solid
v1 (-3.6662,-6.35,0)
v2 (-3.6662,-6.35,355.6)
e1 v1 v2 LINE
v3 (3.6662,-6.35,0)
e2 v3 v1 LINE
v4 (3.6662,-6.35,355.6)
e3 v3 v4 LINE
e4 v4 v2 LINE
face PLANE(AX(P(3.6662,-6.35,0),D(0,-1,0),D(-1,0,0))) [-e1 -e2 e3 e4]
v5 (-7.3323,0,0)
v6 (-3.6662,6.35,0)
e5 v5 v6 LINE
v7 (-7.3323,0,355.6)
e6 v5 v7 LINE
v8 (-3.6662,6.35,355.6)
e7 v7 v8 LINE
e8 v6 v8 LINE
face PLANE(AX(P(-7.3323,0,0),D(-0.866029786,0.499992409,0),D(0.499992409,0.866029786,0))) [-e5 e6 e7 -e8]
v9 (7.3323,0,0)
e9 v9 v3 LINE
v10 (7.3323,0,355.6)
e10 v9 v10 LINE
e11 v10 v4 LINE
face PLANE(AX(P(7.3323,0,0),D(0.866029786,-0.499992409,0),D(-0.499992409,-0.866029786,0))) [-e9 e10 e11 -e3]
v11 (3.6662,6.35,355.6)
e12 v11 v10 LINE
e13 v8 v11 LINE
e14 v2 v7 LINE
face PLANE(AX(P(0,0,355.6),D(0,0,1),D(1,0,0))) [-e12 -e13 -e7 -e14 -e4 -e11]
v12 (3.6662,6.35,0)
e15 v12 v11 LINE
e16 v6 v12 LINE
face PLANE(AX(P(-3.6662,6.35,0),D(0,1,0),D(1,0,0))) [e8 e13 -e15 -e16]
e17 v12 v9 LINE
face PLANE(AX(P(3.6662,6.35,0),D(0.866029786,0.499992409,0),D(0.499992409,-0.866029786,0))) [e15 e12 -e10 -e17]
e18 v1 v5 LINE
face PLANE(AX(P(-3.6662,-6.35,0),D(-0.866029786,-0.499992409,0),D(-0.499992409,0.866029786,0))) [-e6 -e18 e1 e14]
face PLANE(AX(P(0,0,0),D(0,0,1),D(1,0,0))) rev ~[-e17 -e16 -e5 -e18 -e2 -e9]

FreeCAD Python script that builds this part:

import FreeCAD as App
import Part
import Sketcher

V = App.Vector
Q = App.Units.Quantity


def add_polygon(sketch, points):
    """Adds a closed chain of lines whose ends are joined by coincident constraints."""
    first, n = sketch.GeometryCount, len(points)
    for a, b in zip(points, points[1:] + points[:1]):
        sketch.addGeometry(Part.LineSegment(App.Vector(*a, 0), App.Vector(*b, 0)), False)
    for i in range(n):
        sketch.addConstraint(Sketcher.Constraint("Coincident", first + i, 2, first + (i + 1) % n, 1))

doc = App.newDocument("Part")
body = doc.addObject("PartDesign::Body", "Body")

# Sketch on XY plane
sketch1 = doc.addObject("Sketcher::SketchObject", "Sketch")
body.addObject(sketch1)
sketch1.AttachmentSupport = (doc.XY_Plane, [""])
sketch1.MapMode = "FlatFace"
add_polygon(sketch1, [(7, 0), (4, 6), (-4, 6), (-7, 0), (-4, -6), (4, -6)])  # lines 0-5
sketch1.addConstraint(Sketcher.Constraint("Horizontal", 1))
sketch1.addConstraint(Sketcher.Constraint("Horizontal", 4))
sketch1.addConstraint(Sketcher.Constraint("Symmetric", 0, 2, 3, 2, -1, 1))
sketch1.addConstraint(Sketcher.Constraint("Symmetric", 2, 2, 5, 2, -1, 1))
sketch1.addConstraint(Sketcher.Constraint("PointOnObject", 2, 2, -1))
sketch1.addConstraint(Sketcher.Constraint("Parallel", 2, 5))
sketch1.addConstraint(Sketcher.Constraint("Vertical", 1, 2, 3, 2))
sketch1.addConstraint(Sketcher.Constraint("DistanceY", 3, 2, 1, 2, Q("0.5 in")))
sketch1.addConstraint(Sketcher.Constraint("Angle", 0, Q("119.9995 deg")))
sketch1.addConstraint(Sketcher.Constraint("DistanceX", 2, 2, 0, 2, Q("0.433 in")))
pad1 = doc.addObject("PartDesign::Pad", "Pad")
body.addObject(pad1)
pad1.Profile = sketch1
pad1.Length = Q("14 in")

doc.recompute()
